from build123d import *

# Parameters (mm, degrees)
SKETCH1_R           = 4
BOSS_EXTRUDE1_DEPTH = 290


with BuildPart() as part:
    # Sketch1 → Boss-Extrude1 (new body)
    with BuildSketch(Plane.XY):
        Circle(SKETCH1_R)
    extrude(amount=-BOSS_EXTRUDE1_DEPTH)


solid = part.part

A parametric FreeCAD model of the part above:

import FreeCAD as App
import Part
import Sketcher

doc = App.newDocument("Part")
params = doc.addObject("Spreadsheet::Sheet", "Params")
for row, (alias, value) in enumerate([
    ("sketch1_diameter", "8 mm"),
    ("pad1_length", "290 mm"),
], start=1):
    params.set(f"A{row}", alias)
    params.set(f"B{row}", "=" + value)
    params.setAlias(f"B{row}", alias)

body = doc.addObject("PartDesign::Body", "Body")

# Sketch on XY plane
sketch1 = doc.addObject("Sketcher::SketchObject", "Sketch")
body.addObject(sketch1)
sketch1.AttachmentSupport = (doc.XY_Plane, [""])
sketch1.MapMode = "FlatFace"
sketch1.addGeometry(Part.Circle(App.Vector(0, 0, 0), App.Vector(0, 0, 1), 4), False)
sketch1.addConstraint([
    Sketcher.Constraint("Coincident", 0, 3, -1, 1),
    Sketcher.Constraint("Diameter", 0, 8.0),
])
sketch1.setExpression("Constraints[1]", "Params.sketch1_diameter")
pad1 = doc.addObject("PartDesign::Pad", "Pad")
body.addObject(pad1)
pad1.Profile = sketch1
pad1.setExpression("Length", "Params.pad1_length")
pad1.Reversed = True

doc.recompute()
